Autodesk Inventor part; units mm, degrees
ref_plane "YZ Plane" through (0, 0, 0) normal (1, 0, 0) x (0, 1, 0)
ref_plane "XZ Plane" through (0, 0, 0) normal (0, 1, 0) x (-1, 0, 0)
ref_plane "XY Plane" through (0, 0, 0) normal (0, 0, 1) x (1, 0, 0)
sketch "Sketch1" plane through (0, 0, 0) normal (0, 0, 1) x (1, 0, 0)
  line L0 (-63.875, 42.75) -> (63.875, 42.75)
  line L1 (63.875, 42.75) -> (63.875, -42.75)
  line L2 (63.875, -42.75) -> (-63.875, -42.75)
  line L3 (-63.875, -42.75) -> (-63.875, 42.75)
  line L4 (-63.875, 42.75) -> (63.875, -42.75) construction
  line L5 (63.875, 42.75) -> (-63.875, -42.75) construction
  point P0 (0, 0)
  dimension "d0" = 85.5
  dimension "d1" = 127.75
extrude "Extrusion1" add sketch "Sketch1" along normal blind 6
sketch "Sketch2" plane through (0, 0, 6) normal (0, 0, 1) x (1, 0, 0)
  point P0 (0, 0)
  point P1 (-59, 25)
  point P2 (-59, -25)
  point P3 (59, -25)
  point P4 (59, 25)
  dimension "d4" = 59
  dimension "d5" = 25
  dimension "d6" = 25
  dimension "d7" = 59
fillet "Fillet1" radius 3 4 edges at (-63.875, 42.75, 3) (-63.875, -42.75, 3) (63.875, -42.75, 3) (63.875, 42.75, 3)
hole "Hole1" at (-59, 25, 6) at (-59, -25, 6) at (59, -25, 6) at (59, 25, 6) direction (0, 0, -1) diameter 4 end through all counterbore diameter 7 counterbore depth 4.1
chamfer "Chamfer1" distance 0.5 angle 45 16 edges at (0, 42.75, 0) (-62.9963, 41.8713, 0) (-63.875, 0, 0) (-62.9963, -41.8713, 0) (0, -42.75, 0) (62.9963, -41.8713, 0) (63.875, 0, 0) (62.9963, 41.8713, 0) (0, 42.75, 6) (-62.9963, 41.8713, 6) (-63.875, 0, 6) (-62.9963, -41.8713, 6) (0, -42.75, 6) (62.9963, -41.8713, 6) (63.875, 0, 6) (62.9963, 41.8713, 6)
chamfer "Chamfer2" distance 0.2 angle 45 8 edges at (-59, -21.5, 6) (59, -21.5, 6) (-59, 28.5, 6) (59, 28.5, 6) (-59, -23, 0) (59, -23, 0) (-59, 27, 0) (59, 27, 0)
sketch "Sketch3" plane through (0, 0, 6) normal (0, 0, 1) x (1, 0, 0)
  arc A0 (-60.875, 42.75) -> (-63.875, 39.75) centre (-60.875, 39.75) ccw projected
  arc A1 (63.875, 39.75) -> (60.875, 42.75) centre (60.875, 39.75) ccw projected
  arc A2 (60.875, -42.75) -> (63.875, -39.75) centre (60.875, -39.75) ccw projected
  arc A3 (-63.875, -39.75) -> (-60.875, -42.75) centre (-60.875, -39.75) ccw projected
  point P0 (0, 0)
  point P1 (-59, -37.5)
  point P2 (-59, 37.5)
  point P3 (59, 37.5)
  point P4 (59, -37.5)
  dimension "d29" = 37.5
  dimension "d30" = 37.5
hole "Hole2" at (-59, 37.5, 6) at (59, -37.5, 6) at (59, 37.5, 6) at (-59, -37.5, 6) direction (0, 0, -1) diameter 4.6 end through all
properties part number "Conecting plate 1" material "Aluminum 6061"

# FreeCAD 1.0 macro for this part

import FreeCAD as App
import Part
import Sketcher
from FreeCAD import Vector


def edges_at(feature, points):
    """Names of the edges that pass closest to the given points."""
    edges = feature.Shape.Edges
    near = lambda p: min(range(len(edges)), key=lambda i: edges[i].distToShape(Part.Vertex(*p))[0])
    return sorted({f"Edge{near(p) + 1}" for p in points})

doc = App.newDocument("Part")
body = doc.addObject("PartDesign::Body", "Body")

sketch1 = body.newObject("Sketcher::SketchObject", "Sketch")
sketch1.AttachmentSupport = (doc.getObject("XY_Plane"), [""])
sketch1.MapMode = "FlatFace"
sketch1.addGeometry([
    Part.LineSegment(Vector(64, 43, 0), Vector(-64, 43, 0)),
    Part.LineSegment(Vector(-64, 43, 0), Vector(-64, -43, 0)),
    Part.LineSegment(Vector(-64, -43, 0), Vector(64, -43, 0)),
    Part.LineSegment(Vector(64, -43, 0), Vector(64, 43, 0)),
], False)
sketch1.addConstraint([
    Sketcher.Constraint("Coincident", 0, 2, 1, 1),
    Sketcher.Constraint("Coincident", 1, 2, 2, 1),
    Sketcher.Constraint("Coincident", 2, 2, 3, 1),
    Sketcher.Constraint("Coincident", 3, 2, 0, 1),
    Sketcher.Constraint("Horizontal", 0),
    Sketcher.Constraint("Vertical", 1),
    Sketcher.Constraint("Horizontal", 2),
    Sketcher.Constraint("Vertical", 3),
    Sketcher.Constraint("Symmetric", 0, 2, 2, 2, -1, 1),
    Sketcher.Constraint("DistanceY", 1, 2, 1, 1, 85.5),
    Sketcher.Constraint("DistanceX", 0, 2, 0, 1, 127.75),
])
pad1 = body.newObject("PartDesign::Pad", "Pad")
pad1.Profile = sketch1
pad1.Length = 6
doc.recompute()

fillet = body.newObject("PartDesign::Fillet", "Fillet")
fillet.Base = (pad1, edges_at(pad1, [
    (-63.875, 42.75, 3),
    (-63.875, -42.75, 3),
    (63.875, -42.75, 3),
    (63.875, 42.75, 3),
]))
fillet.Radius = 3

sketch2 = body.newObject("Sketcher::SketchObject", "Sketch001")
sketch2.AttachmentSupport = (doc.getObject("XY_Plane"), [""])
sketch2.MapMode = "FlatFace"
sketch2.AttachmentOffset = App.Placement(Vector(0, 0, 6), App.Rotation())
sketch2.addGeometry([
    Part.Circle(Vector(-59, 25, 0), Vector(0, 0, 1), 2),
    Part.Circle(Vector(-59, -25, 0), Vector(0, 0, 1), 2),
    Part.Circle(Vector(59, -25, 0), Vector(0, 0, 1), 2),
    Part.Circle(Vector(59, 25, 0), Vector(0, 0, 1), 2),
], False)
sketch2.addConstraint([
    Sketcher.Constraint("Equal", 0, 1),
    Sketcher.Constraint("Equal", 1, 2),
    Sketcher.Constraint("Equal", 2, 3),
    Sketcher.Constraint("Symmetric", 0, 3, 2, 3, -1, 1),
    Sketcher.Constraint("Symmetric", 1, 3, 3, 3, -1, 1),
    Sketcher.Constraint("Symmetric", 1, 3, 2, 3, -2),
    Sketcher.Constraint("Diameter", 0, 4.0),
    Sketcher.Constraint("DistanceX", 0, 3, -1, 1, 59.0),
    Sketcher.Constraint("DistanceY", -1, 1, 0, 3, 25.0),
])
doc.recompute()
hole = body.newObject("PartDesign::Hole", "Hole")
hole.Profile = sketch2
hole.ThreadType = "None"
hole.Diameter = 4
hole.DepthType = "ThroughAll"
hole.HoleCutType = "Counterbore"
hole.HoleCutDiameter = 7
hole.HoleCutDepth = 4.1
doc.recompute()

chamfer = body.newObject("PartDesign::Chamfer", "Chamfer")
chamfer.Base = (hole, edges_at(hole, [
    (0, 42.75, 0),
    (-62.996, 41.871, 0),
    (-63.875, 0, 0),
    (-62.996, -41.871, 0),
    (0, -42.75, 0),
    (62.996, -41.871, 0),
    (63.875, 0, 0),
    (62.996, 41.871, 0),
    (0, 42.75, 6),
    (-62.996, 41.871, 6),
    (-63.875, 0, 6),
    (-62.996, -41.871, 6),
    (0, -42.75, 6),
    (62.996, -41.871, 6),
    (63.875, 0, 6),
    (62.996, 41.871, 6),
]))
chamfer.Size = 0.5
doc.recompute()

chamfer2 = body.newObject("PartDesign::Chamfer", "Chamfer001")
chamfer2.Base = (chamfer, edges_at(chamfer, [
    (-59, -21.5, 6),
    (59, -21.5, 6),
    (-59, 28.5, 6),
    (59, 28.5, 6),
    (-59, -23, 0),
    (59, -23, 0),
    (-59, 27, 0),
    (59, 27, 0),
]))
chamfer2.Size = 0.2

sketch3 = body.newObject("Sketcher::SketchObject", "Sketch002")
sketch3.AttachmentSupport = (doc.getObject("XY_Plane"), [""])
sketch3.MapMode = "FlatFace"
sketch3.AttachmentOffset = App.Placement(Vector(0, 0, 6), App.Rotation())
sketch3.addGeometry([
    Part.Circle(Vector(-59, 37.5, 0), Vector(0, 0, 1), 2.3),
    Part.Circle(Vector(59, -37.5, 0), Vector(0, 0, 1), 2.3),
    Part.Circle(Vector(59, 37.5, 0), Vector(0, 0, 1), 2.3),
    Part.Circle(Vector(-59, -37.5, 0), Vector(0, 0, 1), 2.3),
], False)
sketch3.addConstraint([
    Sketcher.Constraint("Equal", 0, 1),
    Sketcher.Constraint("Equal", 1, 2),
    Sketcher.Constraint("Equal", 2, 3),
    Sketcher.Constraint("Symmetric", 0, 3, 1, 3, -1, 1),
    Sketcher.Constraint("Symmetric", 2, 3, 3, 3, -1, 1),
    Sketcher.Constraint("Symmetric", 0, 3, 2, 3, -2),
    Sketcher.Constraint("Diameter", 0, 4.6),
    Sketcher.Constraint("DistanceX", 0, 3, -1, 1, 59.0),
    Sketcher.Constraint("DistanceY", 1, 3, 0, 3, 75.0),
])
doc.recompute()
hole2 = body.newObject("PartDesign::Hole", "Hole001")
hole2.Profile = sketch3
hole2.ThreadType = "None"
hole2.Diameter = 4.6
hole2.DepthType = "ThroughAll"

doc.recompute()
